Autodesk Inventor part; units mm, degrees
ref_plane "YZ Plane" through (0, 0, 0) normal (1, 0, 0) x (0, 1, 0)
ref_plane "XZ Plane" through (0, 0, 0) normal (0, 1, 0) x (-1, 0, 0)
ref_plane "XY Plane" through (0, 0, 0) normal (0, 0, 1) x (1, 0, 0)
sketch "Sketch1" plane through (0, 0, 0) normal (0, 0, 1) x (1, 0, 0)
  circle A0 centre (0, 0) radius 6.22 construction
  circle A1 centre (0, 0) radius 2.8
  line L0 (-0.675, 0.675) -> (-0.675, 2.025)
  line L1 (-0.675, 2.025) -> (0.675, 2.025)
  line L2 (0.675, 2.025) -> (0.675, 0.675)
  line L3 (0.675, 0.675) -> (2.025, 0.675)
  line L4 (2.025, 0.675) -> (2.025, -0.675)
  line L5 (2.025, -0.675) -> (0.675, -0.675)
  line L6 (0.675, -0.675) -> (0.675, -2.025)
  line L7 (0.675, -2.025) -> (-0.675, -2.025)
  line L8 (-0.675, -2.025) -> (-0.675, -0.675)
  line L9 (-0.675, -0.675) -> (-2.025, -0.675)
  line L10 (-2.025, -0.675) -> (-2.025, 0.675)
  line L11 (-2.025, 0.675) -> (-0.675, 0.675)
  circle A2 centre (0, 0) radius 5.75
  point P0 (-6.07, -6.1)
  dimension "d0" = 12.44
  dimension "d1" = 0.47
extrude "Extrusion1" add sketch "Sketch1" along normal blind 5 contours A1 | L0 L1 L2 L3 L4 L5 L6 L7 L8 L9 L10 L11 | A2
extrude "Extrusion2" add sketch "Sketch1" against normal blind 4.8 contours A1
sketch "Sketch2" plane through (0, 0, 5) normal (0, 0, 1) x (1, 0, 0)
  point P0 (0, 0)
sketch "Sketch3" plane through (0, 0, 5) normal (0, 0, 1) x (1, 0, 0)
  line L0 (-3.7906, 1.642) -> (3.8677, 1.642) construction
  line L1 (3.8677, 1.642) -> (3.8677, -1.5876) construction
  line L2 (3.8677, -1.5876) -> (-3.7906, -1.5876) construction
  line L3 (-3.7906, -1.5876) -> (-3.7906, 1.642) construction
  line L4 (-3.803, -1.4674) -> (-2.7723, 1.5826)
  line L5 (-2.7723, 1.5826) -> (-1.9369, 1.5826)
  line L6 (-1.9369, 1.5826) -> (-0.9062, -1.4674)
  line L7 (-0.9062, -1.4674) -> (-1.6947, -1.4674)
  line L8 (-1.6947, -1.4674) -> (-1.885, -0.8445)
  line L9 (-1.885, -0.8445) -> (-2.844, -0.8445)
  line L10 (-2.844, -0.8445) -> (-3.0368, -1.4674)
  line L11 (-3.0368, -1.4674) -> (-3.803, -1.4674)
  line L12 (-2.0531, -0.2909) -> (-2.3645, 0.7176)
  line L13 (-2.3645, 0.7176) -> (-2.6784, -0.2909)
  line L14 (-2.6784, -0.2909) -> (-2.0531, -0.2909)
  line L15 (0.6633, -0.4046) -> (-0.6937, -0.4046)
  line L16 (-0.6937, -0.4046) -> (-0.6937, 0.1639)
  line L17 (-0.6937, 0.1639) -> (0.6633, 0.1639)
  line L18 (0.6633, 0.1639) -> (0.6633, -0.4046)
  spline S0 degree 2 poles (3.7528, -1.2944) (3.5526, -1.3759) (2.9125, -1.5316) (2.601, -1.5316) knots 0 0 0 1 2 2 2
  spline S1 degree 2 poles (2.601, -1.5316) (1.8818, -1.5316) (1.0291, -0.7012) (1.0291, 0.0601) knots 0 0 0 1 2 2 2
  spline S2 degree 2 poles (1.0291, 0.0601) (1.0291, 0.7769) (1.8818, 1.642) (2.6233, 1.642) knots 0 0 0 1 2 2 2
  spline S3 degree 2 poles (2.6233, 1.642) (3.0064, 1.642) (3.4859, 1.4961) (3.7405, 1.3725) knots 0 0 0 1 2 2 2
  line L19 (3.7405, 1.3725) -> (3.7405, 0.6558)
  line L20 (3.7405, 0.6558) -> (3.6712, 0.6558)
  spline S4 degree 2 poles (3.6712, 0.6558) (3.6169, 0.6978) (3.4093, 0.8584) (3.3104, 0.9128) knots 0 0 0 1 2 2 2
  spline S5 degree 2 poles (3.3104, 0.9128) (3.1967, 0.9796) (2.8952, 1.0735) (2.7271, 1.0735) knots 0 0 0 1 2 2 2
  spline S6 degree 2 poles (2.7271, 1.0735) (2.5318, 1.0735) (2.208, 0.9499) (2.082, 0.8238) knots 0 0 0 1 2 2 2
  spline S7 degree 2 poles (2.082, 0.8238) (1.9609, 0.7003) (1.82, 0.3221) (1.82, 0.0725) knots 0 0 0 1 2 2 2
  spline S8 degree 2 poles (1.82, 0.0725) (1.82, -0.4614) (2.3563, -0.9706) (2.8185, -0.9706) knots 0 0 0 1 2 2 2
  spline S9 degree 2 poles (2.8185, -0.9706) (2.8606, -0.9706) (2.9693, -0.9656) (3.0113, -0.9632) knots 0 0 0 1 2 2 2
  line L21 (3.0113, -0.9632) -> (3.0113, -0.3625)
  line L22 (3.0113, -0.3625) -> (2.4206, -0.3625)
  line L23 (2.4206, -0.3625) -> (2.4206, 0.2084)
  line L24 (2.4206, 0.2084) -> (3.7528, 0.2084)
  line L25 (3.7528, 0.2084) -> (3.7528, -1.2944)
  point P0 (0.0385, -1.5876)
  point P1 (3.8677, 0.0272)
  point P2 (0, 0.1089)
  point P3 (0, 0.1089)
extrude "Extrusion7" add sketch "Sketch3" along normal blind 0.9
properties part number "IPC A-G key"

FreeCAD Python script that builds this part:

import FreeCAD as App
import Part
import Sketcher

V = App.Vector
Q = App.Units.Quantity

doc = App.newDocument("Part")
body = doc.addObject("PartDesign::Body", "Body")

sketch1 = doc.addObject("Sketcher::SketchObject", "Sketch")
body.addObject(sketch1)
sketch1.AttachmentSupport = (doc.XY_Plane, [""])
sketch1.MapMode = "FlatFace"
sketch1.addGeometry(Part.Circle(V(0, 0, 0), V(0, 0, 1), 6), False)
sketch1.addConstraint(Sketcher.Constraint("Coincident", 0, 3, -1, 1))
sketch1.addConstraint(Sketcher.Constraint("Diameter", 0, Q("11.5 mm")))
pad1 = doc.addObject("PartDesign::Pad", "Pad")
body.addObject(pad1)
pad1.Profile = sketch1
pad1.Length = 5

sketch2 = doc.addObject("Sketcher::SketchObject", "Sketch001")
body.addObject(sketch2)
sketch2.AttachmentSupport = (doc.XY_Plane, [""])
sketch2.MapMode = "FlatFace"
sketch2.addGeometry(Part.Circle(V(0, 0, 0), V(0, 0, 1), 2.8), False)
sketch2.addGeometry(Part.LineSegment(V(-2, 0.7, 0), V(-0.7, 0.7, 0)), False)
sketch2.addGeometry(Part.LineSegment(V(-0.7, 0.7, 0), V(-0.7, 2, 0)), False)
sketch2.addGeometry(Part.LineSegment(V(-0.7, 2, 0), V(0.7, 2, 0)), False)
sketch2.addGeometry(Part.LineSegment(V(0.7, 2, 0), V(0.7, 0.7, 0)), False)
sketch2.addGeometry(Part.LineSegment(V(0.7, 0.7, 0), V(2, 0.7, 0)), False)
sketch2.addGeometry(Part.LineSegment(V(2, 0.7, 0), V(2, -0.7, 0)), False)
sketch2.addGeometry(Part.LineSegment(V(2, -0.7, 0), V(0.7, -0.7, 0)), False)
sketch2.addGeometry(Part.LineSegment(V(0.7, -0.7, 0), V(0.7, -2, 0)), False)
sketch2.addGeometry(Part.LineSegment(V(0.7, -2, 0), V(-0.7, -2, 0)), False)
sketch2.addGeometry(Part.LineSegment(V(-0.7, -2, 0), V(-0.7, -0.7, 0)), False)
sketch2.addGeometry(Part.LineSegment(V(-0.7, -0.7, 0), V(-2, -0.7, 0)), False)
sketch2.addGeometry(Part.LineSegment(V(-2, -0.7, 0), V(-2, 0.7, 0)), False)
sketch2.addConstraint(Sketcher.Constraint("Coincident", 1, 2, 2, 1))
sketch2.addConstraint(Sketcher.Constraint("Coincident", 2, 2, 3, 1))
sketch2.addConstraint(Sketcher.Constraint("Coincident", 3, 2, 4, 1))
sketch2.addConstraint(Sketcher.Constraint("Coincident", 4, 2, 5, 1))
sketch2.addConstraint(Sketcher.Constraint("Coincident", 5, 2, 6, 1))
sketch2.addConstraint(Sketcher.Constraint("Coincident", 6, 2, 7, 1))
sketch2.addConstraint(Sketcher.Constraint("Coincident", 7, 2, 8, 1))
sketch2.addConstraint(Sketcher.Constraint("Coincident", 8, 2, 9, 1))
sketch2.addConstraint(Sketcher.Constraint("Coincident", 9, 2, 10, 1))
sketch2.addConstraint(Sketcher.Constraint("Coincident", 10, 2, 11, 1))
sketch2.addConstraint(Sketcher.Constraint("Coincident", 11, 2, 12, 1))
sketch2.addConstraint(Sketcher.Constraint("Coincident", 12, 2, 1, 1))
sketch2.addConstraint(Sketcher.Constraint("Horizontal", 1))
sketch2.addConstraint(Sketcher.Constraint("Vertical", 2))
sketch2.addConstraint(Sketcher.Constraint("Horizontal", 3))
sketch2.addConstraint(Sketcher.Constraint("Vertical", 4))
sketch2.addConstraint(Sketcher.Constraint("Horizontal", 5))
sketch2.addConstraint(Sketcher.Constraint("Vertical", 6))
sketch2.addConstraint(Sketcher.Constraint("Horizontal", 7))
sketch2.addConstraint(Sketcher.Constraint("Vertical", 8))
sketch2.addConstraint(Sketcher.Constraint("Horizontal", 9))
sketch2.addConstraint(Sketcher.Constraint("Vertical", 10))
sketch2.addConstraint(Sketcher.Constraint("Horizontal", 11))
sketch2.addConstraint(Sketcher.Constraint("Vertical", 12))
sketch2.addConstraint(Sketcher.Constraint("Coincident", 0, 3, -1, 1))
sketch2.addConstraint(Sketcher.Constraint("Symmetric", 1, 2, 7, 2, -1, 1))
sketch2.addConstraint(Sketcher.Constraint("Symmetric", 3, 2, 9, 2, -1, 1))
sketch2.addConstraint(Sketcher.Constraint("Symmetric", 5, 2, 11, 2, -1, 1))
sketch2.addConstraint(Sketcher.Constraint("Symmetric", 1, 2, 4, 2, -2))
sketch2.addConstraint(Sketcher.Constraint("Equal", 1, 3))
sketch2.addConstraint(Sketcher.Constraint("Equal", 11, 2))
sketch2.addConstraint(Sketcher.Constraint("Equal", 4, 6))
sketch2.addConstraint(Sketcher.Constraint("Diameter", 0, Q("5.6 mm")))
sketch2.addConstraint(Sketcher.Constraint("DistanceX", 1, 1, 1, 2, Q("1.35 mm")))
pad2 = doc.addObject("PartDesign::Pad", "Pad001")
body.addObject(pad2)
pad2.Profile = sketch2
pad2.Length = 4.8
pad2.Reversed = True

sketch3 = doc.addObject("Sketcher::SketchObject", "Sketch002")
body.addObject(sketch3)
sketch3.AttachmentSupport = (doc.XY_Plane, [""])
sketch3.MapMode = "FlatFace"
sketch3.AttachmentOffset = App.Placement(V(0, 0, 5), App.Rotation())
sketch3.addGeometry(Part.LineSegment(V(-2.7723, 1.5826, 0), V(-3.803, -1.4674, 0)), False)
sketch3.addGeometry(Part.LineSegment(V(-3.803, -1.4674, 0), V(-3.0368, -1.4674, 0)), False)
sketch3.addGeometry(Part.LineSegment(V(-3.0368, -1.4674, 0), V(-2.844, -0.8445, 0)), False)
sketch3.addGeometry(Part.LineSegment(V(-2.844, -0.8445, 0), V(-1.885, -0.8445, 0)), False)
sketch3.addGeometry(Part.LineSegment(V(-1.885, -0.8445, 0), V(-1.6947, -1.4674, 0)), False)
sketch3.addGeometry(Part.LineSegment(V(-1.6947, -1.4674, 0), V(-0.9062, -1.4674, 0)), False)
sketch3.addGeometry(Part.LineSegment(V(-0.9062, -1.4674, 0), V(-1.9369, 1.5826, 0)), False)
sketch3.addGeometry(Part.LineSegment(V(-1.9369, 1.5826, 0), V(-2.7723, 1.5826, 0)), False)
sketch3.addGeometry(Part.LineSegment(V(-2.3645, 0.7176, 0), V(-2.0531, -0.2909, 0)), False)
sketch3.addGeometry(Part.LineSegment(V(-2.0531, -0.2909, 0), V(-2.6784, -0.2909, 0)), False)
sketch3.addGeometry(Part.LineSegment(V(-2.6784, -0.2909, 0), V(-2.3645, 0.7176, 0)), False)
sketch3.addGeometry(Part.LineSegment(V(-0.6937, -0.4046, 0), V(0.6633, -0.4046, 0)), False)
sketch3.addGeometry(Part.LineSegment(V(0.6633, -0.4046, 0), V(0.6633, 0.1639, 0)), False)
sketch3.addGeometry(Part.LineSegment(V(0.6633, 0.1639, 0), V(-0.6937, 0.1639, 0)), False)
sketch3.addGeometry(Part.LineSegment(V(-0.6937, 0.1639, 0), V(-0.6937, -0.4046, 0)), False)
sketch3.addGeometry(Part.BSplineCurve([V(3.7528, -1.2944, 0), V(3.5526, -1.3759, 0), V(2.9125, -1.5316, 0), V(2.601, -1.5316, 0)], [3, 1, 3], [0, 1, 2], False, 2, [1, 1, 1, 1], False), False)
sketch3.addGeometry(Part.LineSegment(V(3.7528, -1.2944, 0), V(3.7528, 0.2084, 0)), False)
sketch3.addGeometry(Part.LineSegment(V(3.7528, 0.2084, 0), V(2.4206, 0.2084, 0)), False)
sketch3.addGeometry(Part.LineSegment(V(2.4206, 0.2084, 0), V(2.4206, -0.3625, 0)), False)
sketch3.addGeometry(Part.LineSegment(V(2.4206, -0.3625, 0), V(3.0113, -0.3625, 0)), False)
sketch3.addGeometry(Part.LineSegment(V(3.0113, -0.3625, 0), V(3.0113, -0.9632, 0)), False)
sketch3.addGeometry(Part.BSplineCurve([V(2.8185, -0.9706, 0), V(2.8606, -0.9706, 0), V(2.9693, -0.9656, 0), V(3.0113, -0.9632, 0)], [3, 1, 3], [0, 1, 2], False, 2, [1, 1, 1, 1], False), False)
sketch3.addGeometry(Part.BSplineCurve([V(1.82, 0.0725, 0), V(1.82, -0.4614, 0), V(2.3563, -0.9706, 0), V(2.8185, -0.9706, 0)], [3, 1, 3], [0, 1, 2], False, 2, [1, 1, 1, 1], False), False)
sketch3.addGeometry(Part.BSplineCurve([V(2.082, 0.8238, 0), V(1.9609, 0.7003, 0), V(1.82, 0.3221, 0), V(1.82, 0.0725, 0)], [3, 1, 3], [0, 1, 2], False, 2, [1, 1, 1, 1], False), False)
sketch3.addGeometry(Part.BSplineCurve([V(2.7271, 1.0735, 0), V(2.5318, 1.0735, 0), V(2.208, 0.9499, 0), V(2.082, 0.8238, 0)], [3, 1, 3], [0, 1, 2], False, 2, [1, 1, 1, 1], False), False)
sketch3.addGeometry(Part.BSplineCurve([V(3.3104, 0.9128, 0), V(3.1967, 0.9796, 0), V(2.8952, 1.0735, 0), V(2.7271, 1.0735, 0)], [3, 1, 3], [0, 1, 2], False, 2, [1, 1, 1, 1], False), False)
sketch3.addGeometry(Part.BSplineCurve([V(3.6712, 0.6558, 0), V(3.6169, 0.6978, 0), V(3.4093, 0.8584, 0), V(3.3104, 0.9128, 0)], [3, 1, 3], [0, 1, 2], False, 2, [1, 1, 1, 1], False), False)
sketch3.addGeometry(Part.LineSegment(V(3.6712, 0.6558, 0), V(3.7405, 0.6558, 0)), False)
sketch3.addGeometry(Part.LineSegment(V(3.7405, 0.6558, 0), V(3.7405, 1.3725, 0)), False)
sketch3.addGeometry(Part.BSplineCurve([V(2.6233, 1.642, 0), V(3.0064, 1.642, 0), V(3.4859, 1.4961, 0), V(3.7405, 1.3725, 0)], [3, 1, 3], [0, 1, 2], False, 2, [1, 1, 1, 1], False), False)
sketch3.addGeometry(Part.BSplineCurve([V(1.0291, 0.0601, 0), V(1.0291, 0.7769, 0), V(1.8818, 1.642, 0), V(2.6233, 1.642, 0)], [3, 1, 3], [0, 1, 2], False, 2, [1, 1, 1, 1], False), False)
sketch3.addGeometry(Part.BSplineCurve([V(2.601, -1.5316, 0), V(1.8818, -1.5316, 0), V(1.0291, -0.7012, 0), V(1.0291, 0.0601, 0)], [3, 1, 3], [0, 1, 2], False, 2, [1, 1, 1, 1], False), False)
sketch3.addConstraint(Sketcher.Constraint("Block", 15))
sketch3.addConstraint(Sketcher.Constraint("Block", 21))
sketch3.addConstraint(Sketcher.Constraint("Block", 22))
sketch3.addConstraint(Sketcher.Constraint("Block", 23))
sketch3.addConstraint(Sketcher.Constraint("Block", 24))
sketch3.addConstraint(Sketcher.Constraint("Block", 25))
sketch3.addConstraint(Sketcher.Constraint("Block", 26))
sketch3.addConstraint(Sketcher.Constraint("Block", 29))
sketch3.addConstraint(Sketcher.Constraint("Block", 30))
sketch3.addConstraint(Sketcher.Constraint("Block", 31))
sketch3.addConstraint(Sketcher.Constraint("Coincident", 0, 2, 1, 1))
sketch3.addConstraint(Sketcher.Constraint("Coincident", 1, 2, 2, 1))
sketch3.addConstraint(Sketcher.Constraint("Coincident", 2, 2, 3, 1))
sketch3.addConstraint(Sketcher.Constraint("Coincident", 3, 2, 4, 1))
sketch3.addConstraint(Sketcher.Constraint("Coincident", 4, 2, 5, 1))
sketch3.addConstraint(Sketcher.Constraint("Coincident", 5, 2, 6, 1))
sketch3.addConstraint(Sketcher.Constraint("Coincident", 6, 2, 7, 1))
sketch3.addConstraint(Sketcher.Constraint("Coincident", 7, 2, 0, 1))
sketch3.addConstraint(Sketcher.Constraint("Coincident", 8, 2, 9, 1))
sketch3.addConstraint(Sketcher.Constraint("Coincident", 9, 2, 10, 1))
sketch3.addConstraint(Sketcher.Constraint("Coincident", 10, 2, 8, 1))
sketch3.addConstraint(Sketcher.Constraint("Coincident", 11, 2, 12, 1))
sketch3.addConstraint(Sketcher.Constraint("Coincident", 12, 2, 13, 1))
sketch3.addConstraint(Sketcher.Constraint("Coincident", 13, 2, 14, 1))
sketch3.addConstraint(Sketcher.Constraint("Coincident", 14, 2, 11, 1))
sketch3.addConstraint(Sketcher.Constraint("Coincident", 15, 1, 16, 1))
sketch3.addConstraint(Sketcher.Constraint("Coincident", 16, 2, 17, 1))
sketch3.addConstraint(Sketcher.Constraint("Coincident", 17, 2, 18, 1))
sketch3.addConstraint(Sketcher.Constraint("Coincident", 18, 2, 19, 1))
sketch3.addConstraint(Sketcher.Constraint("Coincident", 19, 2, 20, 1))
sketch3.addConstraint(Sketcher.Constraint("Coincident", 20, 2, 21, 2))
sketch3.addConstraint(Sketcher.Constraint("Coincident", 26, 1, 27, 1))
sketch3.addConstraint(Sketcher.Constraint("Coincident", 27, 2, 28, 1))
sketch3.addConstraint(Sketcher.Constraint("Coincident", 28, 2, 29, 2))
sketch3.addConstraint(Sketcher.Constraint("Horizontal", 1))
sketch3.addConstraint(Sketcher.Constraint("Horizontal", 3))
sketch3.addConstraint(Sketcher.Constraint("Horizontal", 5))
sketch3.addConstraint(Sketcher.Constraint("Horizontal", 7))
sketch3.addConstraint(Sketcher.Constraint("Horizontal", 9))
sketch3.addConstraint(Sketcher.Constraint("Horizontal", 11))
sketch3.addConstraint(Sketcher.Constraint("Vertical", 12))
sketch3.addConstraint(Sketcher.Constraint("Horizontal", 13))
sketch3.addConstraint(Sketcher.Constraint("Vertical", 14))
sketch3.addConstraint(Sketcher.Constraint("Vertical", 16))
sketch3.addConstraint(Sketcher.Constraint("Horizontal", 17))
sketch3.addConstraint(Sketcher.Constraint("Vertical", 18))
sketch3.addConstraint(Sketcher.Constraint("Horizontal", 19))
sketch3.addConstraint(Sketcher.Constraint("Vertical", 20))
sketch3.addConstraint(Sketcher.Constraint("Horizontal", 27))
sketch3.addConstraint(Sketcher.Constraint("Vertical", 28))
sketch3.addConstraint(Sketcher.Constraint("Horizontal", 1, 2, 4, 2))
sketch3.addConstraint(Sketcher.Constraint("Equal", 0, 6))
sketch3.addConstraint(Sketcher.Constraint("Angle", 8, Q("-72.8406 deg")))
sketch3.addConstraint(Sketcher.Constraint("Angle", 10, Q("72.711 deg")))
sketch3.addConstraint(Sketcher.Constraint("DistanceX", 1, 2, 6, 2, Q("1.1 mm")))
sketch3.addConstraint(Sketcher.Constraint("DistanceX", 3, 1, 3, 2, Q("0.959 mm")))
sketch3.addConstraint(Sketcher.Constraint("DistanceX", 11, 1, 11, 2, Q("1.357 mm")))
sketch3.addConstraint(Sketcher.Constraint("DistanceY", 18, 2, 18, 1, Q("0.571 mm")))
sketch3.addConstraint(Sketcher.Constraint("DistanceY", 4, 2, 6, 2, Q("3.05 mm")))
sketch3.addConstraint(Sketcher.Constraint("DistanceY", 3, 2, 11, 2, Q("0.44 mm")))
sketch3.addConstraint(Sketcher.Constraint("DistanceX", 17, 2, 27, 2, Q("1.32 mm")))
sketch3.addConstraint(Sketcher.Constraint("Distance", 2, Q("0.652 mm")))
sketch3.addConstraint(Sketcher.Constraint("DistanceX", 1, 1, 1, 2, Q("0.7662 mm")))
sketch3.addConstraint(Sketcher.Constraint("DistanceX", 5, 1, 5, 2, Q("0.7885 mm")))
sketch3.addConstraint(Sketcher.Constraint("DistanceX", 7, 2, 7, 1, Q("0.8354 mm")))
sketch3.addConstraint(Sketcher.Constraint("DistanceX", 9, 2, 9, 1, Q("0.6253 mm")))
sketch3.addConstraint(Sketcher.Constraint("DistanceY", 12, 1, 12, 2, Q("0.5685 mm")))
sketch3.addConstraint(Sketcher.Constraint("DistanceY", 16, 1, 16, 2, Q("1.5028 mm")))
sketch3.addConstraint(Sketcher.Constraint("DistanceX", 0, 2, -1, 1, Q("3.803 mm")))
sketch3.addConstraint(Sketcher.Constraint("DistanceX", 2, 2, -1, 1, Q("2.844 mm")))
sketch3.addConstraint(Sketcher.Constraint("DistanceX", 8, 2, -1, 1, Q("2.053 mm")))
sketch3.addConstraint(Sketcher.Constraint("DistanceY", 8, 2, -1, 1, Q("0.291 mm")))
sketch3.addConstraint(Sketcher.Constraint("DistanceY", -1, 1, 12, 2, Q("0.164 mm")))
sketch3.addConstraint(Sketcher.Constraint("DistanceX", 4, 2, 11, 2, Q("2.358 mm")))
pad3 = doc.addObject("PartDesign::Pad", "Pad002")
body.addObject(pad3)
pad3.Profile = sketch3
pad3.Length = 0.9

doc.recompute()
